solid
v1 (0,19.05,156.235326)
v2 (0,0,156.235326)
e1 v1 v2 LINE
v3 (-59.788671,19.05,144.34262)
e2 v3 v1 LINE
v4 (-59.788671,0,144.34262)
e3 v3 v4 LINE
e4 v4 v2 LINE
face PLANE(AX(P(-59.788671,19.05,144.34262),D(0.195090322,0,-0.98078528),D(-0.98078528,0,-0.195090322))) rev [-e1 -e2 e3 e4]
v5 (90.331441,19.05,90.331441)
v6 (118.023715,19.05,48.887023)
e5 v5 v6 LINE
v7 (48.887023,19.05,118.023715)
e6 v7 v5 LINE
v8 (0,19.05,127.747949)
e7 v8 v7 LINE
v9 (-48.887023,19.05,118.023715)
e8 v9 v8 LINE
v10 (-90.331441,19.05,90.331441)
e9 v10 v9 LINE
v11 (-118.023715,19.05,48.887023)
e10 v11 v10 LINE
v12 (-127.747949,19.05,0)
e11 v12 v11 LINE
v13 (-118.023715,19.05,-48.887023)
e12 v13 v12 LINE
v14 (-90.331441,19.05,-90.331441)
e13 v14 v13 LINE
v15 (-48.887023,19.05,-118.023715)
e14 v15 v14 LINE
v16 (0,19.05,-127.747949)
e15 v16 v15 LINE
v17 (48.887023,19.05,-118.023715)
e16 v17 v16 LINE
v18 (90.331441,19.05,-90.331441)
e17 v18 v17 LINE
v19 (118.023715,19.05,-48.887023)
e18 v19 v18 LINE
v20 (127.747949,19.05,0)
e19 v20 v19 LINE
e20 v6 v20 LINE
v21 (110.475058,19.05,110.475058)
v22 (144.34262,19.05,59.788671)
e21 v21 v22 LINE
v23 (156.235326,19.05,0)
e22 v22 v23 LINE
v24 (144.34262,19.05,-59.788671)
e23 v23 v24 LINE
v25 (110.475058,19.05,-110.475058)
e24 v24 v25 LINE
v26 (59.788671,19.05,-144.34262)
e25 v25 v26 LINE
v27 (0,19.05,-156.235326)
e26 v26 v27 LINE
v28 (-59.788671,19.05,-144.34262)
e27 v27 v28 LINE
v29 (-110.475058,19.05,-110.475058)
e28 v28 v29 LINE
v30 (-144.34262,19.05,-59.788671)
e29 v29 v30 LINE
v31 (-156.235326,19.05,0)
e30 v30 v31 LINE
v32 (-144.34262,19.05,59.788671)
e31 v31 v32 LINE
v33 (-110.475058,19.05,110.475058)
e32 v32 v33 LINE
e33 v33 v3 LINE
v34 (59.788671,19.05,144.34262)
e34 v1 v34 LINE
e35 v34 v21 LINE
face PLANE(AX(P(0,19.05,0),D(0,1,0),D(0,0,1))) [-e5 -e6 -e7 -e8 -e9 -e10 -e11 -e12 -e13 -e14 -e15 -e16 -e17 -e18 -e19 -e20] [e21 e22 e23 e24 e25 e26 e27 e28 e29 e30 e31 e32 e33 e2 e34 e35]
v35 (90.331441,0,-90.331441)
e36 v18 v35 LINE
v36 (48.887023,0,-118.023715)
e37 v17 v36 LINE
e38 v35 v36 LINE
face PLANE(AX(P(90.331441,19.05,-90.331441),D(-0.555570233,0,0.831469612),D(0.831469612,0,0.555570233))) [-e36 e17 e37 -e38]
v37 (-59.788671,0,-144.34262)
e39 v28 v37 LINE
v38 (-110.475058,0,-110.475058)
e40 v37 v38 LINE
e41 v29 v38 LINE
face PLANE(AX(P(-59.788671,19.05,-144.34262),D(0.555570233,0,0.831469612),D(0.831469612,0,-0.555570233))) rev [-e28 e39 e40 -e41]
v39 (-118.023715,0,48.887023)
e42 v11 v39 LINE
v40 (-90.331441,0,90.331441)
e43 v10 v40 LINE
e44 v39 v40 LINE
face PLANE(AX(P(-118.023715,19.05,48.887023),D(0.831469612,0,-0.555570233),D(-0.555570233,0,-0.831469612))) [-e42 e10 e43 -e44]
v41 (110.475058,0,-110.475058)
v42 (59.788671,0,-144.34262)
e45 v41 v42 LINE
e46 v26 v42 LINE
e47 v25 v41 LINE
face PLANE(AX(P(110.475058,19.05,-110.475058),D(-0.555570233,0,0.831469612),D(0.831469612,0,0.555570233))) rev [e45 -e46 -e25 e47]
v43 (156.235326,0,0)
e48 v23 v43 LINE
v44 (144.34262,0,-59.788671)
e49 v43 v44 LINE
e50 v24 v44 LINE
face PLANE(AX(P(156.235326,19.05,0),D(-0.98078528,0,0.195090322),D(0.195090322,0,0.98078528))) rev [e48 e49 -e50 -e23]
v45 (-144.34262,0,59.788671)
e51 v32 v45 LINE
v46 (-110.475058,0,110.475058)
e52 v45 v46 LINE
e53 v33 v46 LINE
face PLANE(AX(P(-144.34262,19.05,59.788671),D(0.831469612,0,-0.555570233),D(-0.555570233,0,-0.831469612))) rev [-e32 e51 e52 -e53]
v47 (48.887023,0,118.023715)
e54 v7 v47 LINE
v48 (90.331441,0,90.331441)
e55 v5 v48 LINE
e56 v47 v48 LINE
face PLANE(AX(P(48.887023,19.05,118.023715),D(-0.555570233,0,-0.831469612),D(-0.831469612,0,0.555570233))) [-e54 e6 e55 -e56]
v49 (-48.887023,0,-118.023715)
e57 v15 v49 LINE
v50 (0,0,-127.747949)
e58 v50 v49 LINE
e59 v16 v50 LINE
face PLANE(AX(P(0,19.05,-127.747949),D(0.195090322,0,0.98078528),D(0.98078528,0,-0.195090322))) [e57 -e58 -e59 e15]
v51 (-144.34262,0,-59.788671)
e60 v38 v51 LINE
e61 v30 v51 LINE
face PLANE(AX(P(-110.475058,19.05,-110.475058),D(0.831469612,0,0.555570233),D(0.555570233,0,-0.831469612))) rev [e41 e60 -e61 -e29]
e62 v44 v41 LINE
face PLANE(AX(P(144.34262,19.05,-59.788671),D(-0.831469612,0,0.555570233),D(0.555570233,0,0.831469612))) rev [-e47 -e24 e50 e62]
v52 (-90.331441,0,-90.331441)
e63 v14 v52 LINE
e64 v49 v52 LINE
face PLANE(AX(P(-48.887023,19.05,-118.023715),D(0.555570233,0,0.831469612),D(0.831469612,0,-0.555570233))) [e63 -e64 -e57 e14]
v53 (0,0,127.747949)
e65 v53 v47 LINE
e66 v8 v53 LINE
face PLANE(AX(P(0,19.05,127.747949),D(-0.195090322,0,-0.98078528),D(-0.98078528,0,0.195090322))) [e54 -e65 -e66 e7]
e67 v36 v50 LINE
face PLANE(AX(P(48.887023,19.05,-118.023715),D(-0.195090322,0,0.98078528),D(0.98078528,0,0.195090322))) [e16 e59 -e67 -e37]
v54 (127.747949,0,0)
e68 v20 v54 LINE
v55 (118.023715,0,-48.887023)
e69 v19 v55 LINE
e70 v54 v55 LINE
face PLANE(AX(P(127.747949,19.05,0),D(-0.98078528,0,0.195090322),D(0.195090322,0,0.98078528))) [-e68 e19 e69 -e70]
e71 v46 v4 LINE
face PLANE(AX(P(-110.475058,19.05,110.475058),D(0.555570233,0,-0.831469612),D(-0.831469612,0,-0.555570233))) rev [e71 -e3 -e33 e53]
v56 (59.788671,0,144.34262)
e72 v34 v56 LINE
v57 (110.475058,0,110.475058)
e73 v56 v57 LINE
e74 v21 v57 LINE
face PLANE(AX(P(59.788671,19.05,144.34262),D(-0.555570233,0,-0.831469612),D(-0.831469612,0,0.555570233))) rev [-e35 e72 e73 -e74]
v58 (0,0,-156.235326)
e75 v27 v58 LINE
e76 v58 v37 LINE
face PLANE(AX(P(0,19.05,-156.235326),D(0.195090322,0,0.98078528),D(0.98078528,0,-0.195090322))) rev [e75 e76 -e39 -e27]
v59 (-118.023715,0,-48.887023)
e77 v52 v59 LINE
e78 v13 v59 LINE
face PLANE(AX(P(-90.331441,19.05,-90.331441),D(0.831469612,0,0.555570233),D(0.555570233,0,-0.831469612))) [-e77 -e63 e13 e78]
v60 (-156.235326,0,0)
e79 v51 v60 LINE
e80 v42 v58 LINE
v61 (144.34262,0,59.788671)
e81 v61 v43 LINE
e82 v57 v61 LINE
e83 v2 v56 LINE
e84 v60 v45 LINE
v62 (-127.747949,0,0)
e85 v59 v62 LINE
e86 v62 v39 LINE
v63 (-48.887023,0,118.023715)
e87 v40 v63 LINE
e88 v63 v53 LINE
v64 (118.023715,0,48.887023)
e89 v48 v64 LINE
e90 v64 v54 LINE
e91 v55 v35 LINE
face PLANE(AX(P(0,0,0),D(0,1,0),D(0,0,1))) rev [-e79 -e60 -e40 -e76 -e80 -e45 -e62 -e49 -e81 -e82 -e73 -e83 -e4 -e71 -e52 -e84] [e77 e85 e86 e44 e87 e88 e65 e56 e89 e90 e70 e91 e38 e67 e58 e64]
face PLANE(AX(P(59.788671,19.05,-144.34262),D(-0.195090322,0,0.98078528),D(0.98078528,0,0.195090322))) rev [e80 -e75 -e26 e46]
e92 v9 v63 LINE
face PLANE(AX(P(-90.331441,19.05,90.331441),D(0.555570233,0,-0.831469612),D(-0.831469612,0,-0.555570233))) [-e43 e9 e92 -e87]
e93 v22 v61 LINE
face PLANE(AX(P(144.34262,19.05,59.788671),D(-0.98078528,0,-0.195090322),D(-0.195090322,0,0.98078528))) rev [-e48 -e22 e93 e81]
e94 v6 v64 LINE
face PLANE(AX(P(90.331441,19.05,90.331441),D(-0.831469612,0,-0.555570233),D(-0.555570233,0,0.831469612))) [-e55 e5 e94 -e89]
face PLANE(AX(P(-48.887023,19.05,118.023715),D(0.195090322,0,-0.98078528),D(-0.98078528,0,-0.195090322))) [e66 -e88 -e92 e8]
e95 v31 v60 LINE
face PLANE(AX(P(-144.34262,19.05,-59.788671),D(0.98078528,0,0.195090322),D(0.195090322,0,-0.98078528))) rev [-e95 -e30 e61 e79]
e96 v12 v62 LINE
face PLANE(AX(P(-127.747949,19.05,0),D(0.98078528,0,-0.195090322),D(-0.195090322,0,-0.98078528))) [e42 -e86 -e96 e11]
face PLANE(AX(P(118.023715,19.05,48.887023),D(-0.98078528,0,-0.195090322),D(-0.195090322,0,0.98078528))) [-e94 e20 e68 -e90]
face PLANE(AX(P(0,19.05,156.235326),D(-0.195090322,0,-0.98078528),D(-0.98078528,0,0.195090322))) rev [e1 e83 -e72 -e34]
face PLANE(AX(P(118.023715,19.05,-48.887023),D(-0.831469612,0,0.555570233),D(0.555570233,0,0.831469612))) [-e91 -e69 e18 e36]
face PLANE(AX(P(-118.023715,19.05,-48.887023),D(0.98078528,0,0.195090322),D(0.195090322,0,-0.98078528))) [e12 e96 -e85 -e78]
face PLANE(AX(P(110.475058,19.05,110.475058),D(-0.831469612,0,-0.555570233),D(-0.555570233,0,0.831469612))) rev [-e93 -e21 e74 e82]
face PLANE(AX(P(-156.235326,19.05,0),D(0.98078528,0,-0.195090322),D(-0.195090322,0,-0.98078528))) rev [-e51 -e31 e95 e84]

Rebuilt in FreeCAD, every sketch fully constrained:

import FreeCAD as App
import Part
import Sketcher

V = App.Vector
Q = App.Units.Quantity

doc = App.newDocument("Part")
body = doc.addObject("PartDesign::Body", "Body")

# Sketch on XZ plane
sketch1 = body.newObject("Sketcher::SketchObject", "Sketch")
sketch1.AttachmentSupport = (doc.getObject("XZ_Plane"), [""])
sketch1.MapMode = "FlatFace"
sketch1.addGeometry(Part.LineSegment(V(156.235326, 0, 0), V(144.34262, -59.788671, 0)), False)
sketch1.addGeometry(Part.LineSegment(V(144.34262, -59.788671, 0), V(110.475058, -110.475058, 0)), False)
sketch1.addGeometry(Part.LineSegment(V(110.475058, -110.475058, 0), V(59.788671, -144.34262, 0)), False)
sketch1.addGeometry(Part.LineSegment(V(59.788671, -144.34262, 0), V(0, -156.235326, 0)), False)
sketch1.addGeometry(Part.LineSegment(V(0, -156.235326, 0), V(-59.788671, -144.34262, 0)), False)
sketch1.addGeometry(Part.LineSegment(V(-59.788671, -144.34262, 0), V(-110.475058, -110.475058, 0)), False)
sketch1.addGeometry(Part.LineSegment(V(-110.475058, -110.475058, 0), V(-144.34262, -59.788671, 0)), False)
sketch1.addGeometry(Part.LineSegment(V(-144.34262, -59.788671, 0), V(-156.235326, 0, 0)), False)
sketch1.addGeometry(Part.LineSegment(V(-156.235326, 0, 0), V(-144.34262, 59.788671, 0)), False)
sketch1.addGeometry(Part.LineSegment(V(-144.34262, 59.788671, 0), V(-110.475058, 110.475058, 0)), False)
sketch1.addGeometry(Part.LineSegment(V(-110.475058, 110.475058, 0), V(-59.788671, 144.34262, 0)), False)
sketch1.addGeometry(Part.LineSegment(V(-59.788671, 144.34262, 0), V(0, 156.235326, 0)), False)
sketch1.addGeometry(Part.LineSegment(V(0, 156.235326, 0), V(59.788671, 144.34262, 0)), False)
sketch1.addGeometry(Part.LineSegment(V(59.788671, 144.34262, 0), V(110.475058, 110.475058, 0)), False)
sketch1.addGeometry(Part.LineSegment(V(110.475058, 110.475058, 0), V(144.34262, 59.788671, 0)), False)
sketch1.addGeometry(Part.LineSegment(V(144.34262, 59.788671, 0), V(156.235326, 0, 0)), False)
sketch1.addGeometry(Part.LineSegment(V(118.023715, -48.887023, 0), V(127.747949, 0, 0)), False)
sketch1.addGeometry(Part.LineSegment(V(127.747949, 0, 0), V(118.023715, 48.887023, 0)), False)
sketch1.addGeometry(Part.LineSegment(V(118.023715, 48.887023, 0), V(90.331441, 90.331441, 0)), False)
sketch1.addGeometry(Part.LineSegment(V(90.331441, 90.331441, 0), V(48.887023, 118.023715, 0)), False)
sketch1.addGeometry(Part.LineSegment(V(48.887023, 118.023715, 0), V(0, 127.747949, 0)), False)
sketch1.addGeometry(Part.LineSegment(V(0, 127.747949, 0), V(-48.887023, 118.023715, 0)), False)
sketch1.addGeometry(Part.LineSegment(V(-48.887023, 118.023715, 0), V(-90.331441, 90.331441, 0)), False)
sketch1.addGeometry(Part.LineSegment(V(-90.331441, 90.331441, 0), V(-118.023715, 48.887023, 0)), False)
sketch1.addGeometry(Part.LineSegment(V(-118.023715, 48.887023, 0), V(-127.747949, 0, 0)), False)
sketch1.addGeometry(Part.LineSegment(V(-127.747949, 0, 0), V(-118.023715, -48.887023, 0)), False)
sketch1.addGeometry(Part.LineSegment(V(-118.023715, -48.887023, 0), V(-90.331441, -90.331441, 0)), False)
sketch1.addGeometry(Part.LineSegment(V(-90.331441, -90.331441, 0), V(-48.887023, -118.023715, 0)), False)
sketch1.addGeometry(Part.LineSegment(V(-48.887023, -118.023715, 0), V(0, -127.747949, 0)), False)
sketch1.addGeometry(Part.LineSegment(V(0, -127.747949, 0), V(48.887023, -118.023715, 0)), False)
sketch1.addGeometry(Part.LineSegment(V(48.887023, -118.023715, 0), V(90.331441, -90.331441, 0)), False)
sketch1.addGeometry(Part.LineSegment(V(90.331441, -90.331441, 0), V(118.023715, -48.887023, 0)), False)
sketch1.addConstraint(Sketcher.Constraint("Coincident", 0, 2, 1, 1))
sketch1.addConstraint(Sketcher.Constraint("Coincident", 1, 2, 2, 1))
sketch1.addConstraint(Sketcher.Constraint("Coincident", 2, 2, 3, 1))
sketch1.addConstraint(Sketcher.Constraint("Coincident", 3, 2, 4, 1))
sketch1.addConstraint(Sketcher.Constraint("Coincident", 4, 2, 5, 1))
sketch1.addConstraint(Sketcher.Constraint("Coincident", 5, 2, 6, 1))
sketch1.addConstraint(Sketcher.Constraint("Coincident", 6, 2, 7, 1))
sketch1.addConstraint(Sketcher.Constraint("Coincident", 7, 2, 8, 1))
sketch1.addConstraint(Sketcher.Constraint("Coincident", 8, 2, 9, 1))
sketch1.addConstraint(Sketcher.Constraint("Coincident", 9, 2, 10, 1))
sketch1.addConstraint(Sketcher.Constraint("Coincident", 10, 2, 11, 1))
sketch1.addConstraint(Sketcher.Constraint("Coincident", 11, 2, 12, 1))
sketch1.addConstraint(Sketcher.Constraint("Coincident", 12, 2, 13, 1))
sketch1.addConstraint(Sketcher.Constraint("Coincident", 13, 2, 14, 1))
sketch1.addConstraint(Sketcher.Constraint("Coincident", 14, 2, 15, 1))
sketch1.addConstraint(Sketcher.Constraint("Coincident", 15, 2, 0, 1))
sketch1.addConstraint(Sketcher.Constraint("Coincident", 16, 2, 17, 1))
sketch1.addConstraint(Sketcher.Constraint("Coincident", 17, 2, 18, 1))
sketch1.addConstraint(Sketcher.Constraint("Coincident", 18, 2, 19, 1))
sketch1.addConstraint(Sketcher.Constraint("Coincident", 19, 2, 20, 1))
sketch1.addConstraint(Sketcher.Constraint("Coincident", 20, 2, 21, 1))
sketch1.addConstraint(Sketcher.Constraint("Coincident", 21, 2, 22, 1))
sketch1.addConstraint(Sketcher.Constraint("Coincident", 22, 2, 23, 1))
sketch1.addConstraint(Sketcher.Constraint("Coincident", 23, 2, 24, 1))
sketch1.addConstraint(Sketcher.Constraint("Coincident", 24, 2, 25, 1))
sketch1.addConstraint(Sketcher.Constraint("Coincident", 25, 2, 26, 1))
sketch1.addConstraint(Sketcher.Constraint("Coincident", 26, 2, 27, 1))
sketch1.addConstraint(Sketcher.Constraint("Coincident", 27, 2, 28, 1))
sketch1.addConstraint(Sketcher.Constraint("Coincident", 28, 2, 29, 1))
sketch1.addConstraint(Sketcher.Constraint("Coincident", 29, 2, 30, 1))
sketch1.addConstraint(Sketcher.Constraint("Coincident", 30, 2, 31, 1))
sketch1.addConstraint(Sketcher.Constraint("Coincident", 31, 2, 16, 1))
sketch1.addConstraint(Sketcher.Constraint("Symmetric", 0, 2, 8, 2, -1, 1))
sketch1.addConstraint(Sketcher.Constraint("Symmetric", 1, 2, 9, 2, -1, 1))
sketch1.addConstraint(Sketcher.Constraint("Symmetric", 2, 2, 10, 2, -1, 1))
sketch1.addConstraint(Sketcher.Constraint("Symmetric", 3, 2, 11, 2, -1, 1))
sketch1.addConstraint(Sketcher.Constraint("Symmetric", 4, 2, 12, 2, -1, 1))
sketch1.addConstraint(Sketcher.Constraint("Symmetric", 5, 2, 13, 2, -1, 1))
sketch1.addConstraint(Sketcher.Constraint("Symmetric", 6, 2, 14, 2, -1, 1))
sketch1.addConstraint(Sketcher.Constraint("Symmetric", 7, 2, 15, 2, -1, 1))
sketch1.addConstraint(Sketcher.Constraint("Symmetric", 16, 2, 24, 2, -1, 1))
sketch1.addConstraint(Sketcher.Constraint("Symmetric", 17, 2, 25, 2, -1, 1))
sketch1.addConstraint(Sketcher.Constraint("Symmetric", 18, 2, 26, 2, -1, 1))
sketch1.addConstraint(Sketcher.Constraint("Symmetric", 19, 2, 27, 2, -1, 1))
sketch1.addConstraint(Sketcher.Constraint("Symmetric", 20, 2, 28, 2, -1, 1))
sketch1.addConstraint(Sketcher.Constraint("Symmetric", 21, 2, 29, 2, -1, 1))
sketch1.addConstraint(Sketcher.Constraint("Symmetric", 22, 2, 30, 2, -1, 1))
sketch1.addConstraint(Sketcher.Constraint("Symmetric", 23, 2, 31, 2, -1, 1))
sketch1.addConstraint(Sketcher.Constraint("Symmetric", 2, 2, 4, 2, -2))
sketch1.addConstraint(Sketcher.Constraint("Symmetric", 1, 2, 5, 2, -2))
sketch1.addConstraint(Sketcher.Constraint("Symmetric", 0, 2, 6, 2, -2))
sketch1.addConstraint(Sketcher.Constraint("Symmetric", 19, 2, 21, 2, -2))
sketch1.addConstraint(Sketcher.Constraint("Symmetric", 18, 2, 22, 2, -2))
sketch1.addConstraint(Sketcher.Constraint("Symmetric", 17, 2, 23, 2, -2))
sketch1.addConstraint(Sketcher.Constraint("PointOnObject", 3, 2, -2))
sketch1.addConstraint(Sketcher.Constraint("PointOnObject", 7, 2, -1))
sketch1.addConstraint(Sketcher.Constraint("PointOnObject", 16, 2, -1))
sketch1.addConstraint(Sketcher.Constraint("PointOnObject", 20, 2, -2))
sketch1.addConstraint(Sketcher.Constraint("Perpendicular", 0, 4))
sketch1.addConstraint(Sketcher.Constraint("Perpendicular", 1, 5))
sketch1.addConstraint(Sketcher.Constraint("Perpendicular", 12, 16))
sketch1.addConstraint(Sketcher.Constraint("Parallel", 14, 18))
sketch1.addConstraint(Sketcher.Constraint("Parallel", 13, 19))
sketch1.addConstraint(Sketcher.Constraint("Perpendicular", 16, 20))
sketch1.addConstraint(Sketcher.Constraint("Equal", 0, 1))
sketch1.addConstraint(Sketcher.Constraint("Equal", 1, 2))
sketch1.addConstraint(Sketcher.Constraint("Equal", 2, 3))
sketch1.addConstraint(Sketcher.Constraint("Equal", 17, 18))
sketch1.addConstraint(Sketcher.Constraint("Equal", 18, 19))
sketch1.addConstraint(Sketcher.Constraint("Equal", 19, 20))
sketch1.addConstraint(Sketcher.Constraint("Distance", 0, Q("2.4 in")))
sketch1.addConstraint(Sketcher.Constraint("Angle", 0, Q("-101.25 deg")))
sketch1.addConstraint(Sketcher.Constraint("Angle", 1, Q("-123.75 deg")))
sketch1.addConstraint(Sketcher.Constraint("DistanceX", -1, 1, 16, 2, Q("127.747949 mm")))
pad1 = body.newObject("PartDesign::Pad", "Pad")
pad1.Profile = sketch1
pad1.Length = Q("0.75 in")
pad1.Reversed = True

doc.recompute()
